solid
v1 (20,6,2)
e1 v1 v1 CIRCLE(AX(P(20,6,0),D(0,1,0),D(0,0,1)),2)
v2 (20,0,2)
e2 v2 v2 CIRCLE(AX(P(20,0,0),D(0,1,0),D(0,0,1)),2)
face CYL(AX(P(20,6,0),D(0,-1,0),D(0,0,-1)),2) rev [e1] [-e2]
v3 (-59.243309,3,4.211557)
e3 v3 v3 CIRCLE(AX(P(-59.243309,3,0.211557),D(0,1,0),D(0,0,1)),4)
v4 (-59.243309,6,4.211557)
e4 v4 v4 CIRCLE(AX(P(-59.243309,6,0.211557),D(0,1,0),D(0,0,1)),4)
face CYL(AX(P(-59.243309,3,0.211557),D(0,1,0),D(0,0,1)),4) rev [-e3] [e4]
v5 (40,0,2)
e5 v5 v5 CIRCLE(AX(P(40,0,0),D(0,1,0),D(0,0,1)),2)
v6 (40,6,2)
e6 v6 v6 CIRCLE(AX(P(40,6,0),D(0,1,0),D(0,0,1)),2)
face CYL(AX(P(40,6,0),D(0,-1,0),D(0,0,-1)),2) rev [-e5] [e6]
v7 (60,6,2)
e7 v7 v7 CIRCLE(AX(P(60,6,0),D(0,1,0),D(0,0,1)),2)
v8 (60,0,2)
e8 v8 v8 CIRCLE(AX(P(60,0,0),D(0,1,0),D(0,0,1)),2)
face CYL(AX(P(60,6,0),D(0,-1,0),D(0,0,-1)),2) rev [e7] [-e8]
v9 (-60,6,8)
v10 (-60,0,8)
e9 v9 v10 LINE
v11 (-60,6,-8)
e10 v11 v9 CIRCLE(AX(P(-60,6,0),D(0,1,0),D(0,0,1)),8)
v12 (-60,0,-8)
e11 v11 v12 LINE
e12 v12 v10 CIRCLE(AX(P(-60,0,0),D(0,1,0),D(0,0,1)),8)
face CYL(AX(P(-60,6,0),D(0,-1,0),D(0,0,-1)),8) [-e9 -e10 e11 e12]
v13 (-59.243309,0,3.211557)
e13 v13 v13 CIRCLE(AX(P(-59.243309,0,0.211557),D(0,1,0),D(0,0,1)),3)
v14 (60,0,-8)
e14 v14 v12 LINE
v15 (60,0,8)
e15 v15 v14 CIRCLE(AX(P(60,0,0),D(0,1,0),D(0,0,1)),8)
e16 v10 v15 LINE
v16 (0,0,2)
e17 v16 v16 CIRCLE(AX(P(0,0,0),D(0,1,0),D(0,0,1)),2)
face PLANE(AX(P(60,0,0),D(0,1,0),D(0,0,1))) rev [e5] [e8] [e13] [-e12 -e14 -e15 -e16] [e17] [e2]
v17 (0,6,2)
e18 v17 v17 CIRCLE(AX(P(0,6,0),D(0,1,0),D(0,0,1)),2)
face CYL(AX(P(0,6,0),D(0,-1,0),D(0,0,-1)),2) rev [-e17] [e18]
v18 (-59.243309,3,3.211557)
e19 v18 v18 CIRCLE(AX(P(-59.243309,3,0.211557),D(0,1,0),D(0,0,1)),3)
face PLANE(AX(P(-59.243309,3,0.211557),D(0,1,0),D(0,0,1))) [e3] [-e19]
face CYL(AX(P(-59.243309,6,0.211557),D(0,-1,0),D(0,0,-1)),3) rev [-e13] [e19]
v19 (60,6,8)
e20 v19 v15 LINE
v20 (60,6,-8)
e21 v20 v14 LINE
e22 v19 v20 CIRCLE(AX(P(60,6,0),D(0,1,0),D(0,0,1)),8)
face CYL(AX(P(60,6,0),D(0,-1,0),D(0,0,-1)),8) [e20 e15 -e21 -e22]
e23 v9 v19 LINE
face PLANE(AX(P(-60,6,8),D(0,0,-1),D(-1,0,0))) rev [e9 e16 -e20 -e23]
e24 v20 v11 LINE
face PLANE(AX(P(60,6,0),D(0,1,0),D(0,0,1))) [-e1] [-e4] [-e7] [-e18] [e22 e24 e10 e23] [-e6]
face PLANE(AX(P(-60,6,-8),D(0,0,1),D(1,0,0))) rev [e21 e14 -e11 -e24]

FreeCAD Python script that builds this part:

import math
import FreeCAD as App
import Part
import Sketcher
from FreeCAD import Vector

doc = App.newDocument("Part")
body = doc.addObject("PartDesign::Body", "Body")

# Sketch on XZ plane
sketch1 = body.newObject("Sketcher::SketchObject", "Sketch")
sketch1.AttachmentSupport = (doc.getObject("XZ_Plane"), [""])
sketch1.MapMode = "FlatFace"
sketch1.addGeometry([
    Part.LineSegment(Vector(-60, 8, 0), Vector(60, 8, 0)),  # 0
    Part.ArcOfCircle(Part.Circle(Vector(60, 0, 0), Vector(0, 0, 1), 8), math.radians(-90), math.radians(90)),  # 1
    Part.LineSegment(Vector(60, -8, 0), Vector(-60, -8, 0)),  # 2
    Part.ArcOfCircle(Part.Circle(Vector(-60, 0, 0), Vector(0, 0, 1), 8), math.radians(90), math.radians(270)),  # 3
    Part.Circle(Vector(-59.243309, 0.211557, 0), Vector(0, 0, 1), 3),  # 4
    Part.Circle(Vector(0, 0, 0), Vector(0, 0, 1), 2),  # 5
    Part.Circle(Vector(20, 0, 0), Vector(0, 0, 1), 2),  # 6
    Part.Circle(Vector(40, 0, 0), Vector(0, 0, 1), 2),  # 7
    Part.Circle(Vector(60, 0, 0), Vector(0, 0, 1), 2),  # 8
], False)
sketch1.addConstraint([
    Sketcher.Constraint("Tangent", 0, 2, 1, 2),
    Sketcher.Constraint("Tangent", 1, 1, 2, 1),
    Sketcher.Constraint("Tangent", 2, 2, 3, 2),
    Sketcher.Constraint("Tangent", 3, 1, 0, 1),
    Sketcher.Constraint("Horizontal", 0),
    Sketcher.Constraint("Horizontal", 2),
    Sketcher.Constraint("Coincident", 5, 3, -1, 1),
    Sketcher.Constraint("Coincident", 8, 3, 1, 3),
    Sketcher.Constraint("Equal", 5, 6),
    Sketcher.Constraint("Equal", 6, 7),
    Sketcher.Constraint("Equal", 7, 8),
    Sketcher.Constraint("Symmetric", 1, 3, 3, 3, -1, 1),
    Sketcher.Constraint("PointOnObject", 6, 3, -1),
    Sketcher.Constraint("PointOnObject", 7, 3, -1),
    Sketcher.Constraint("Diameter", 4, 6.0),
    Sketcher.Constraint("Diameter", 5, 4.0),
    Sketcher.Constraint("Radius", 1, 8.0),
    Sketcher.Constraint("DistanceX", 0, 1, 0, 2, 120.0),
    Sketcher.Constraint("DistanceX", -1, 1, 6, 3, 20.0),
    Sketcher.Constraint("DistanceX", -1, 1, 7, 3, 40.0),
    Sketcher.Constraint("DistanceX", 4, 3, -1, 1, 59.243309),
    Sketcher.Constraint("DistanceY", -1, 1, 4, 3, 0.211557),
])
pad1 = body.newObject("PartDesign::Pad", "Pad")
pad1.Profile = sketch1
pad1.Length = 6
pad1.Reversed = True

# Sketch on XZ plane
sketch2 = body.newObject("Sketcher::SketchObject", "Sketch001")
sketch2.AttachmentSupport = (doc.getObject("XZ_Plane"), [""])
sketch2.MapMode = "FlatFace"
sketch2.AttachmentOffset = App.Placement(Vector(0, 0, -6), App.Rotation())
sketch2.addGeometry(Part.Circle(Vector(-59.243309, 0.211557, 0), Vector(0, 0, 1), 4), False)
sketch2.addConstraint([
    Sketcher.Constraint("Diameter", 0, 8.0),
    Sketcher.Constraint("DistanceX", 0, 3, -1, 1, 59.243309),
    Sketcher.Constraint("DistanceY", -1, 1, 0, 3, 0.211557),
])
pocket1 = body.newObject("PartDesign::Pocket", "Pocket")
pocket1.Profile = sketch2
pocket1.Length = 3
pocket1.Reversed = True

doc.recompute()
